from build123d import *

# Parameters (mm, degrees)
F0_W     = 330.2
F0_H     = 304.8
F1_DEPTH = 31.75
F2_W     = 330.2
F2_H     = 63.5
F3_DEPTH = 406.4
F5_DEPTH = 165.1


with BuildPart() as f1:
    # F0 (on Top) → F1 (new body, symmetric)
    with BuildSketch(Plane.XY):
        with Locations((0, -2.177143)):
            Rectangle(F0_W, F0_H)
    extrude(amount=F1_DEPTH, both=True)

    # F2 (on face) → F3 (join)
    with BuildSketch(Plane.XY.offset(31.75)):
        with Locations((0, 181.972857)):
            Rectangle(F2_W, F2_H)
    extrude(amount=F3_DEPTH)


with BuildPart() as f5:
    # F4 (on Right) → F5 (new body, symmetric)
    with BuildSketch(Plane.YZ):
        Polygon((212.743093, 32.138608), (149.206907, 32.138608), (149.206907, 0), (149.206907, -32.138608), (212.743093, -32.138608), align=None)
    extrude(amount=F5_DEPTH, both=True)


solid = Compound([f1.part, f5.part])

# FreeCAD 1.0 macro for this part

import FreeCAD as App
import Part
import Sketcher
Q = App.Units.Quantity


def add_polygon(sketch, points):
    """Adds a closed chain of lines whose ends are joined by coincident constraints."""
    first, n = sketch.GeometryCount, len(points)
    for a, b in zip(points, points[1:] + points[:1]):
        sketch.addGeometry(Part.LineSegment(App.Vector(*a, 0), App.Vector(*b, 0)), False)
    for i in range(n):
        sketch.addConstraint(Sketcher.Constraint("Coincident", first + i, 2, first + (i + 1) % n, 1))

doc = App.newDocument("Part")
body = doc.addObject("PartDesign::Body", "Body")
body.AllowCompound = True

# Sketch on XY plane
sketch1 = body.newObject("Sketcher::SketchObject", "Sketch")
sketch1.AttachmentSupport = (doc.getObject("XY_Plane"), [""])
sketch1.MapMode = "FlatFace"
add_polygon(sketch1, [(-165.1, 150.222857), (-165.1, -154.577143), (165.1, -154.577143), (165.1, 150.222857)])  # lines 0-3
sketch1.addConstraint(Sketcher.Constraint("Vertical", 0))
sketch1.addConstraint(Sketcher.Constraint("Horizontal", 1))
sketch1.addConstraint(Sketcher.Constraint("Vertical", 2))
sketch1.addConstraint(Sketcher.Constraint("Horizontal", 3))
sketch1.addConstraint(Sketcher.Constraint("DistanceX", 1, 1, 1, 2, Q("13 in")))
sketch1.addConstraint(Sketcher.Constraint("DistanceY", 0, 2, 0, 1, Q("12 in")))
sketch1.addConstraint(Sketcher.Constraint("DistanceX", 0, 2, -1, 1, Q("6.5 in")))
sketch1.addConstraint(Sketcher.Constraint("DistanceY", 0, 2, -1, 1, Q("154.577143 mm")))
pad1 = body.newObject("PartDesign::Pad", "Pad")
pad1.Profile = sketch1
pad1.Length = Q("2.5 in")
pad1.Midplane = True

# Sketch on XY plane
sketch2 = body.newObject("Sketcher::SketchObject", "Sketch001")
sketch2.AttachmentSupport = (doc.getObject("XY_Plane"), [""])
sketch2.MapMode = "FlatFace"
sketch2.AttachmentOffset = App.Placement(App.Vector(0, 0, 1.25 * 25.4), App.Rotation())
add_polygon(sketch2, [(-165.1, 213.722857), (-165.1, 150.222857), (165.1, 150.222857), (165.1, 213.722857)])  # lines 0-3
sketch2.addConstraint(Sketcher.Constraint("Vertical", 0))
sketch2.addConstraint(Sketcher.Constraint("Horizontal", 1))
sketch2.addConstraint(Sketcher.Constraint("Vertical", 2))
sketch2.addConstraint(Sketcher.Constraint("Horizontal", 3))
sketch2.addConstraint(Sketcher.Constraint("DistanceX", 1, 1, 1, 2, Q("13 in")))
sketch2.addConstraint(Sketcher.Constraint("DistanceY", 0, 2, 0, 1, Q("2.5 in")))
sketch2.addConstraint(Sketcher.Constraint("DistanceX", 0, 2, -1, 1, Q("6.5 in")))
sketch2.addConstraint(Sketcher.Constraint("DistanceY", -1, 1, 0, 2, Q("150.222857 mm")))
pad2 = body.newObject("PartDesign::Pad", "Pad001")
pad2.Profile = sketch2
pad2.Length = Q("16 in")
body2 = doc.addObject("PartDesign::Body", "Body001")

# Sketch on YZ plane
sketch3 = body2.newObject("Sketcher::SketchObject", "Sketch002")
sketch3.AttachmentSupport = (doc.getObject("YZ_Plane001"), [""])
sketch3.MapMode = "FlatFace"
add_polygon(sketch3, [(212.743093, 32.138608), (149.206907, 32.138608), (149.206907, -32.138608), (212.743093, -32.138608)])  # lines 0-3
sketch3.addConstraint(Sketcher.Constraint("Horizontal", 0))
sketch3.addConstraint(Sketcher.Constraint("Vertical", 1))
sketch3.addConstraint(Sketcher.Constraint("Horizontal", 2))
sketch3.addConstraint(Sketcher.Constraint("Vertical", 3))
sketch3.addConstraint(Sketcher.Constraint("DistanceX", 0, 2, 0, 1, Q("63.536186 mm")))
sketch3.addConstraint(Sketcher.Constraint("DistanceY", 1, 2, 1, 1, Q("64.277216 mm")))
sketch3.addConstraint(Sketcher.Constraint("DistanceX", -1, 1, 0, 2, Q("149.206907 mm")))
sketch3.addConstraint(Sketcher.Constraint("DistanceY", -1, 1, 0, 2, Q("32.138608 mm")))
pad3 = body2.newObject("PartDesign::Pad", "Pad002")
pad3.Profile = sketch3
pad3.Length = Q("13 in")
pad3.Midplane = True

doc.recompute()
